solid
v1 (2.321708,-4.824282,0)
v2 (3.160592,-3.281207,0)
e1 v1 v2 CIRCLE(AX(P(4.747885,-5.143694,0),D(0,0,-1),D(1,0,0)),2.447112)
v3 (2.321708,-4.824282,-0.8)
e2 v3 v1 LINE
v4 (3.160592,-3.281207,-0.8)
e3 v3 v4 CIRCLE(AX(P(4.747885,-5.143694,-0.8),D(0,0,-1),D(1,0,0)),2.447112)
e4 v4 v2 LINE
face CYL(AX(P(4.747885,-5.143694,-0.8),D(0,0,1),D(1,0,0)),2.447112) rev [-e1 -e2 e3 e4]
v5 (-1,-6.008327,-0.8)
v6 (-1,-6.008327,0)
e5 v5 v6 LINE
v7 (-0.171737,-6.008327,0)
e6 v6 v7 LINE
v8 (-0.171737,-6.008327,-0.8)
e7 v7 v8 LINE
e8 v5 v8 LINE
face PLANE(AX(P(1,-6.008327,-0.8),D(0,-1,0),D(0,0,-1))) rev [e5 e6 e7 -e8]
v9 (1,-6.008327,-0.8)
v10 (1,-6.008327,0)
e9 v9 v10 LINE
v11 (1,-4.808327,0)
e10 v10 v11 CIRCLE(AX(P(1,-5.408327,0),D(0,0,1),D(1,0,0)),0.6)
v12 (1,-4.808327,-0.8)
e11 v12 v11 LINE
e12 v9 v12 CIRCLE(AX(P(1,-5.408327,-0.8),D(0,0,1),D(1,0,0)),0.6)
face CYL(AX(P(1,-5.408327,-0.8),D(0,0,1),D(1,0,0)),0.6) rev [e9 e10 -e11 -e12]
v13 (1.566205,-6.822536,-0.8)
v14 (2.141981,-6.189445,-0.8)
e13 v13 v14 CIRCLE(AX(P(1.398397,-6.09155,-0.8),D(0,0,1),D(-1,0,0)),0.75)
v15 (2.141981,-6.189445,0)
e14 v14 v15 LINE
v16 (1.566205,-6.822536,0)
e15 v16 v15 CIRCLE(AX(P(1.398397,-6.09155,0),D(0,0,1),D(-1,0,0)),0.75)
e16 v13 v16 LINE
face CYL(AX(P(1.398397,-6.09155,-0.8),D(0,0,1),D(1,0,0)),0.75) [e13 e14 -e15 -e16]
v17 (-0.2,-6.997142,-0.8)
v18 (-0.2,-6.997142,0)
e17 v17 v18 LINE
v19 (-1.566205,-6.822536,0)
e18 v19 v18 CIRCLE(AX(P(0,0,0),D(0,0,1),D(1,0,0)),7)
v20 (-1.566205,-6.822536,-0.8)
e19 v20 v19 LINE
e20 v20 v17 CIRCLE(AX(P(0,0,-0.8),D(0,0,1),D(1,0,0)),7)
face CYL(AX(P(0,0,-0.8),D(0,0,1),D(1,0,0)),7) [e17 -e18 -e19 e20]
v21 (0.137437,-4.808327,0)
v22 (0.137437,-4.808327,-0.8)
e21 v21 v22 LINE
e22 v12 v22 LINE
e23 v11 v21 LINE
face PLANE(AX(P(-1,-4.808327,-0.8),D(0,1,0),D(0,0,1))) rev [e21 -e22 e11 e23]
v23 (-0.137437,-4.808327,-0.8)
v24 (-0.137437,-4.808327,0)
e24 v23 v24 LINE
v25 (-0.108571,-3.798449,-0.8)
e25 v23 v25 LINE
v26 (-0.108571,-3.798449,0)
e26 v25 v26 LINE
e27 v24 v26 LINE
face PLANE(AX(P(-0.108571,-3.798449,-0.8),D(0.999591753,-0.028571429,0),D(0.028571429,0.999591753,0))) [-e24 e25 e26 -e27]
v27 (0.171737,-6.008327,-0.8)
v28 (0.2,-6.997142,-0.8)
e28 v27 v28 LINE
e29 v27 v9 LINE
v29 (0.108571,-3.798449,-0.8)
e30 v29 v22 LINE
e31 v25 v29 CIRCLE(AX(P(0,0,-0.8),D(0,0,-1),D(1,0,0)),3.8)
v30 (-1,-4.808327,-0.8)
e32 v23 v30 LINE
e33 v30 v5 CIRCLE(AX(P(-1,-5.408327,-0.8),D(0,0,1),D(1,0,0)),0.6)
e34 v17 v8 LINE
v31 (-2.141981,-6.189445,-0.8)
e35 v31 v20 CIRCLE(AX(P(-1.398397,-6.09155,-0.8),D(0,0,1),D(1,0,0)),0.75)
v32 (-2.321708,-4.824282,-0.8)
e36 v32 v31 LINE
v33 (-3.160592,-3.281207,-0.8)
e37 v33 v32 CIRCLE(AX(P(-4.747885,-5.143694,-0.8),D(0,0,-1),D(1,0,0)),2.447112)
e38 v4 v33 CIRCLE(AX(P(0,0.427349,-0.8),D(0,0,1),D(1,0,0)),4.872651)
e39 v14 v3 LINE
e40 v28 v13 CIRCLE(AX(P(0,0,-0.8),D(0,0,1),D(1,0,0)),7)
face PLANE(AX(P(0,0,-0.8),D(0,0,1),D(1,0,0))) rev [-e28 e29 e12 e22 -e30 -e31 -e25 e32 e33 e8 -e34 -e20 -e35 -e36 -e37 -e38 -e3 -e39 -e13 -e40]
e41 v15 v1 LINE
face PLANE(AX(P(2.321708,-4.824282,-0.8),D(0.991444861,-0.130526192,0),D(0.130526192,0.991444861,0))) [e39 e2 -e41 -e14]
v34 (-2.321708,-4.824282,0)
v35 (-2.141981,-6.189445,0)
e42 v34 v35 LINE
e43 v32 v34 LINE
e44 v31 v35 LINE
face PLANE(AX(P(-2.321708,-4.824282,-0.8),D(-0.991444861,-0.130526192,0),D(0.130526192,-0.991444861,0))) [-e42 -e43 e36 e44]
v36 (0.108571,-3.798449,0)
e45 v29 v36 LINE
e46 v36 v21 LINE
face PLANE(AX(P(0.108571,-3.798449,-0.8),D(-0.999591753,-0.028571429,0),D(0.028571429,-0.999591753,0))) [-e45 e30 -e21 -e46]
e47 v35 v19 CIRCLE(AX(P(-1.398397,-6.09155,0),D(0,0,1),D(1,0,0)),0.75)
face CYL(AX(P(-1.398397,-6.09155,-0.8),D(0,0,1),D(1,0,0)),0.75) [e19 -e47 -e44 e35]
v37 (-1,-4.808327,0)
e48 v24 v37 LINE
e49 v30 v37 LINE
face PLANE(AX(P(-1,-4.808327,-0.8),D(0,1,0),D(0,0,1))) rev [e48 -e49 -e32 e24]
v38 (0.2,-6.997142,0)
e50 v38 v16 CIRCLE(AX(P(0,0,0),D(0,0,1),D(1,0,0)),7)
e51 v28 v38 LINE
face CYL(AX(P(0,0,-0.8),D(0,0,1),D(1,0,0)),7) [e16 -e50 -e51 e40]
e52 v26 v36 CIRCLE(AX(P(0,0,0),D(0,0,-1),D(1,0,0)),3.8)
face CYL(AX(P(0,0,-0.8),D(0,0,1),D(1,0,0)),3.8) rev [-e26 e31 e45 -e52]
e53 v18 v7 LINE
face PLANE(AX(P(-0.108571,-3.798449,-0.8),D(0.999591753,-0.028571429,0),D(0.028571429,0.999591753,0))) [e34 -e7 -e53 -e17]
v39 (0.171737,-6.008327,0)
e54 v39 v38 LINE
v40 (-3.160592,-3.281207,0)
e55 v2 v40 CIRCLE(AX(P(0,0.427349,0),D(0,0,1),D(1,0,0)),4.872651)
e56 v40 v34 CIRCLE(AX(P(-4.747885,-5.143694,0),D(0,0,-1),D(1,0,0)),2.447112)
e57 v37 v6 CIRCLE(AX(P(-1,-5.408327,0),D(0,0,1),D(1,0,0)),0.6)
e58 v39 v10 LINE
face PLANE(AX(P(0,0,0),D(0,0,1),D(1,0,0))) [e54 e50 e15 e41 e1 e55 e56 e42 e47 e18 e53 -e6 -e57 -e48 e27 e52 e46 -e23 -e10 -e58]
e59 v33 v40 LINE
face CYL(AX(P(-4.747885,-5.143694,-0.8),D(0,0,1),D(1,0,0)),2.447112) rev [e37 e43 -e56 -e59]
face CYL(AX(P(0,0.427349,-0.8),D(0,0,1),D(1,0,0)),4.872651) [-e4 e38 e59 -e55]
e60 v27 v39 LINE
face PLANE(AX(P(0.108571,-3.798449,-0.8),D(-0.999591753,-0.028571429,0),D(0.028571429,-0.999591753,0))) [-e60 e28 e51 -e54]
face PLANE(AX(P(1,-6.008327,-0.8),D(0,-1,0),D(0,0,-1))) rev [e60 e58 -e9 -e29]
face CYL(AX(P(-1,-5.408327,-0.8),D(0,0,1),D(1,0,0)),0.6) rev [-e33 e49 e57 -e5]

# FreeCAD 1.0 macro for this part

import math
import FreeCAD as App
import Part
import Sketcher
from FreeCAD import Vector
Q = App.Units.Quantity

doc = App.newDocument("Part")
params = doc.addObject("Spreadsheet::Sheet", "Params")
for row, (alias, value) in enumerate([
    ("sketch1_radius", "7 mm"),
    ("sketch1_diameter", "1.2 mm"),
    ("sketch1_radius2", "3.8 mm"),
    ("sketch1_radius3", "0.75 mm"),
    ("pad1_length", "0.8 mm"),
    ("sketch2_width", "2 mm"),
    ("sketch2_height", "1.2 mm"),
], start=1):
    params.set(f"A{row}", alias)
    params.set(f"B{row}", "=" + value)
    params.setAlias(f"B{row}", alias)

body = doc.addObject("PartDesign::Body", "Body")

# Sketch on XY plane
sketch1 = doc.addObject("Sketcher::SketchObject", "Sketch")
body.addObject(sketch1)
sketch1.AttachmentSupport = (doc.XY_Plane, [""])
sketch1.MapMode = "FlatFace"
sketch1.addGeometry(Part.LineSegment(Vector(0.11, -3.8, 0), Vector(0.2, -7, 0)), False)
sketch1.addGeometry(Part.ArcOfCircle(Part.Circle(Vector(0, 0, 0), Vector(0, 0, 1), 7), math.radians(-88.36), math.radians(-77.07)), False)
sketch1.addGeometry(Part.ArcOfCircle(Part.Circle(Vector(1.4, -6.09, 0), Vector(0, 0, 1), 0.75), math.radians(-77), math.radians(-7)), False)
sketch1.addGeometry(Part.LineSegment(Vector(2.14, -6.19, 0), Vector(2.32, -4.82, 0)), False)
sketch1.addGeometry(Part.ArcOfCircle(Part.Circle(Vector(4.75, -5.14, 0), Vector(0, 0, 1), 2.45), math.radians(130), math.radians(172)), False)
sketch1.addGeometry(Part.ArcOfCircle(Part.Circle(Vector(0, 0.43, 0), Vector(0, 0, 1), 4.87), math.radians(-50), math.radians(230)), False)
sketch1.addGeometry(Part.ArcOfCircle(Part.Circle(Vector(-4.75, -5.14, 0), Vector(0, 0, 1), 2.45), math.radians(8), math.radians(50)), False)
sketch1.addGeometry(Part.LineSegment(Vector(-2.32, -4.82, 0), Vector(-2.14, -6.19, 0)), False)
sketch1.addGeometry(Part.ArcOfCircle(Part.Circle(Vector(-1.4, -6.09, 0), Vector(0, 0, 1), 0.75), math.radians(-173), math.radians(-103)), False)
sketch1.addGeometry(Part.ArcOfCircle(Part.Circle(Vector(0, 0, 0), Vector(0, 0, 1), 7), math.radians(-102.93), math.radians(-91.64)), False)
sketch1.addGeometry(Part.LineSegment(Vector(-0.2, -7, 0), Vector(-0.11, -3.8, 0)), False)
sketch1.addGeometry(Part.ArcOfCircle(Part.Circle(Vector(0, 0, 0), Vector(0, 0, 1), 3.8), math.radians(-88), math.radians(268)), False)
sketch1.addGeometry(Part.Circle(Vector(-1, -5.41, 0), Vector(0, 0, 1), 0.6), False)
sketch1.addGeometry(Part.Circle(Vector(1, -5.41, 0), Vector(0, 0, 1), 0.6), False)
sketch1.addConstraint(Sketcher.Constraint("Coincident", 0, 2, 1, 1))
sketch1.addConstraint(Sketcher.Constraint("Tangent", 1, 2, 2, 1))
sketch1.addConstraint(Sketcher.Constraint("Tangent", 2, 2, 3, 1))
sketch1.addConstraint(Sketcher.Constraint("Tangent", 3, 2, 4, 2))
sketch1.addConstraint(Sketcher.Constraint("Tangent", 4, 1, 5, 1))
sketch1.addConstraint(Sketcher.Constraint("Tangent", 5, 2, 6, 2))
sketch1.addConstraint(Sketcher.Constraint("Tangent", 6, 1, 7, 1))
sketch1.addConstraint(Sketcher.Constraint("Tangent", 7, 2, 8, 1))
sketch1.addConstraint(Sketcher.Constraint("Tangent", 8, 2, 9, 1))
sketch1.addConstraint(Sketcher.Constraint("Coincident", 9, 2, 10, 1))
sketch1.addConstraint(Sketcher.Constraint("Coincident", 10, 2, 11, 2))
sketch1.addConstraint(Sketcher.Constraint("Coincident", 11, 1, 0, 1))
sketch1.addConstraint(Sketcher.Constraint("Coincident", 1, 3, -1, 1))
sketch1.addConstraint(Sketcher.Constraint("Coincident", 9, 3, -1, 1))
sketch1.addConstraint(Sketcher.Constraint("Coincident", 11, 3, -1, 1))
sketch1.addConstraint(Sketcher.Constraint("Equal", 4, 6))
sketch1.addConstraint(Sketcher.Constraint("Equal", 2, 8))
sketch1.addConstraint(Sketcher.Constraint("Equal", 1, 9))
sketch1.addConstraint(Sketcher.Constraint("Equal", 12, 13))
sketch1.addConstraint(Sketcher.Constraint("Symmetric", 4, 3, 6, 3, -2))
sketch1.addConstraint(Sketcher.Constraint("Symmetric", 12, 3, 13, 3, -2))
sketch1.addConstraint(Sketcher.Constraint("Horizontal", 2, 3, 8, 3))
sketch1.addConstraint(Sketcher.Constraint("Horizontal", 0, 2, 9, 2))
sketch1.addConstraint(Sketcher.Constraint("Horizontal", 10, 2, 11, 1))
sketch1.addConstraint(Sketcher.Constraint("Radius", 1, Q("7 mm")))
sketch1.addConstraint(Sketcher.Constraint("Diameter", 12, Q("1.2 mm")))
sketch1.addConstraint(Sketcher.Constraint("Radius", 11, Q("3.8 mm")))
sketch1.addConstraint(Sketcher.Constraint("Radius", 2, Q("0.75 mm")))
sketch1.addConstraint(Sketcher.Constraint("DistanceX", 12, 3, -1, 1, Q("1 mm")))
sketch1.addConstraint(Sketcher.Constraint("Angle", 3, Q("82.5 deg")))
sketch1.addConstraint(Sketcher.Constraint("DistanceX", -1, 1, 0, 2, Q("0.2 mm")))
sketch1.addConstraint(Sketcher.Constraint("Radius", 5, Q("4.872651 mm")))
sketch1.addConstraint(Sketcher.Constraint("Radius", 4, Q("2.447112 mm")))
sketch1.addConstraint(Sketcher.Constraint("DistanceY", 2, 3, 5, 3, Q("6.518899 mm")))
sketch1.addConstraint(Sketcher.Constraint("DistanceX", 8, 3, 1, 2, Q("2.964602 mm")))
sketch1.addConstraint(Sketcher.Constraint("DistanceY", 8, 3, 10, 2, Q("2.293102 mm")))
sketch1.addConstraint(Sketcher.Constraint("DistanceY", 1, 2, 13, 3, Q("1.414209 mm")))
sketch1.setExpression("Constraints[24]", "Params.sketch1_radius")
sketch1.setExpression("Constraints[25]", "Params.sketch1_diameter")
sketch1.setExpression("Constraints[26]", "Params.sketch1_radius2")
sketch1.setExpression("Constraints[27]", "Params.sketch1_radius3")
pad1 = doc.addObject("PartDesign::Pad", "Pad")
body.addObject(pad1)
pad1.Profile = sketch1
pad1.setExpression("Length", "Params.pad1_length")
pad1.Reversed = True

# Sketch on XY plane
sketch2 = doc.addObject("Sketcher::SketchObject", "Sketch001")
body.addObject(sketch2)
sketch2.AttachmentSupport = (doc.XY_Plane, [""])
sketch2.MapMode = "FlatFace"
sketch2.addGeometry(Part.LineSegment(Vector(-1, -4.8, 0), Vector(-1, -6, 0)), False)
sketch2.addGeometry(Part.LineSegment(Vector(-1, -6, 0), Vector(1, -6, 0)), False)
sketch2.addGeometry(Part.LineSegment(Vector(1, -6, 0), Vector(1, -4.8, 0)), False)
sketch2.addGeometry(Part.LineSegment(Vector(1, -4.8, 0), Vector(-1, -4.8, 0)), False)
sketch2.addConstraint(Sketcher.Constraint("Coincident", 0, 2, 1, 1))
sketch2.addConstraint(Sketcher.Constraint("Coincident", 1, 2, 2, 1))
sketch2.addConstraint(Sketcher.Constraint("Coincident", 2, 2, 3, 1))
sketch2.addConstraint(Sketcher.Constraint("Coincident", 3, 2, 0, 1))
sketch2.addConstraint(Sketcher.Constraint("Vertical", 0))
sketch2.addConstraint(Sketcher.Constraint("Horizontal", 1))
sketch2.addConstraint(Sketcher.Constraint("Vertical", 2))
sketch2.addConstraint(Sketcher.Constraint("Horizontal", 3))
sketch2.addConstraint(Sketcher.Constraint("DistanceX", 1, 1, 1, 2, Q("2 mm")))
sketch2.addConstraint(Sketcher.Constraint("DistanceY", 0, 2, 0, 1, Q("1.2 mm")))
sketch2.addConstraint(Sketcher.Constraint("DistanceX", 0, 2, -1, 1, Q("1 mm")))
sketch2.addConstraint(Sketcher.Constraint("DistanceY", 0, 2, -1, 1, Q("6.008327 mm")))
sketch2.setExpression("Constraints[8]", "Params.sketch2_width")
sketch2.setExpression("Constraints[9]", "Params.sketch2_height")
pocket1 = doc.addObject("PartDesign::Pocket", "Pocket")
body.addObject(pocket1)
pocket1.Profile = sketch2
pocket1.Type = "ThroughAll"

doc.recompute()
